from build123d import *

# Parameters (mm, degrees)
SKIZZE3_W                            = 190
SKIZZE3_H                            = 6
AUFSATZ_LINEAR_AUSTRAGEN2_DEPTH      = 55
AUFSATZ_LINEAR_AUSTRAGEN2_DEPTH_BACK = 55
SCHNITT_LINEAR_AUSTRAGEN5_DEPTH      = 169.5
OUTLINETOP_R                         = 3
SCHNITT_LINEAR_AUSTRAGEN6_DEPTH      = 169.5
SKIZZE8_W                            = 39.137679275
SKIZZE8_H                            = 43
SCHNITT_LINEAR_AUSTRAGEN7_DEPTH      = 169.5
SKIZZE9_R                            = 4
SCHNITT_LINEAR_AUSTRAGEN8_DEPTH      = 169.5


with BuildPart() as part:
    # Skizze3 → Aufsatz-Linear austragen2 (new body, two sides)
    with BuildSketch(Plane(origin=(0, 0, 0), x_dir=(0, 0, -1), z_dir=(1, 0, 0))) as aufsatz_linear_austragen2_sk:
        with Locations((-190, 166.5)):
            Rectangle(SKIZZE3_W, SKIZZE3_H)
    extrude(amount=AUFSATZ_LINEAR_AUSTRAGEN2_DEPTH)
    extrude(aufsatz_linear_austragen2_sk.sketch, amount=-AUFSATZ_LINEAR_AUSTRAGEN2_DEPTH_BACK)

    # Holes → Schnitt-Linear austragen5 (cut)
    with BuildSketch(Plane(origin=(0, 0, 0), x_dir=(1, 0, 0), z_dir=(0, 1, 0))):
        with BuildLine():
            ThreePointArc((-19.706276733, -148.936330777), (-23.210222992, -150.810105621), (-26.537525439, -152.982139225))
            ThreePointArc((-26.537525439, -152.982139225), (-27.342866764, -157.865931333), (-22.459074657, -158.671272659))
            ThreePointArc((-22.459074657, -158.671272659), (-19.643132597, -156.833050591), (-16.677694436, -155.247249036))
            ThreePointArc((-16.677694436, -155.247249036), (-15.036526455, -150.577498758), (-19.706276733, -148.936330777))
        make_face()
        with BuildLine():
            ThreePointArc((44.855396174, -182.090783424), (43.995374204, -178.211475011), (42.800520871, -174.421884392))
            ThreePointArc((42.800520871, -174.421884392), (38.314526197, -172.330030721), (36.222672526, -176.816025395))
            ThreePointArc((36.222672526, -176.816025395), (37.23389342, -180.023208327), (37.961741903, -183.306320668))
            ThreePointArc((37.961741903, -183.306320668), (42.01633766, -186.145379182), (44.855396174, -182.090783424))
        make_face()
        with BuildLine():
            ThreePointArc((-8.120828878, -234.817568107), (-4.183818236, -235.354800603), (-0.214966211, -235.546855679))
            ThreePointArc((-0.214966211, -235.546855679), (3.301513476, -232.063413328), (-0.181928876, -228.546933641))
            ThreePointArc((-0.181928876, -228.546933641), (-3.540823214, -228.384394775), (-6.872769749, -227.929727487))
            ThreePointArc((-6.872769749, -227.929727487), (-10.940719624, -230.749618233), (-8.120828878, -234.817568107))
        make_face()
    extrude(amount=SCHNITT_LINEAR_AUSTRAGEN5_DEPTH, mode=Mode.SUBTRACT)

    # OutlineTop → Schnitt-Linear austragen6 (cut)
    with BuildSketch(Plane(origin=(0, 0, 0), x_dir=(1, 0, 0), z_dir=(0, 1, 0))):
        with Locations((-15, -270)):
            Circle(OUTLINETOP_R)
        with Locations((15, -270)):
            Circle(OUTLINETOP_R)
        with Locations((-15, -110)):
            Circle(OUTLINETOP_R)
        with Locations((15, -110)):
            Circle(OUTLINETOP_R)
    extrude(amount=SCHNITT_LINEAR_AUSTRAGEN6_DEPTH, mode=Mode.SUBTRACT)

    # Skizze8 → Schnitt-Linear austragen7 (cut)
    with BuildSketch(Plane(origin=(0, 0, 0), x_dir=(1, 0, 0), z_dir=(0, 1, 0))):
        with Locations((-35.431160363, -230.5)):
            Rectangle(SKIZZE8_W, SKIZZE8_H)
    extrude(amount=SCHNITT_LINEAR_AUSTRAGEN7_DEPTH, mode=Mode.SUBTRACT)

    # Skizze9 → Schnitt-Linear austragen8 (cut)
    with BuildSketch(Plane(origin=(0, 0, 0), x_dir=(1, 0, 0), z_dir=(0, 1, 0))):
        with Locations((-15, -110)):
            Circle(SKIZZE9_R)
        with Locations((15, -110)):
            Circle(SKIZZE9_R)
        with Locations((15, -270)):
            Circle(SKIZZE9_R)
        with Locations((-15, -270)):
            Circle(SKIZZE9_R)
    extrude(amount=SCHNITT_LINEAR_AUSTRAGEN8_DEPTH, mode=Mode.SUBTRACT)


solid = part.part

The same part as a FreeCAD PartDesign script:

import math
import FreeCAD as App
import Part
import Sketcher

V = App.Vector


def add_polygon(sketch, points):
    """Adds a closed chain of lines whose ends are joined by coincident constraints."""
    first, n = sketch.GeometryCount, len(points)
    for a, b in zip(points, points[1:] + points[:1]):
        sketch.addGeometry(Part.LineSegment(App.Vector(*a, 0), App.Vector(*b, 0)), False)
    for i in range(n):
        sketch.addConstraint(Sketcher.Constraint("Coincident", first + i, 2, first + (i + 1) % n, 1))

doc = App.newDocument("Part")
params = doc.addObject("Spreadsheet::Sheet", "Params")
for row, (alias, value) in enumerate([
    ("sketch1_width", "6 mm"),
    ("sketch1_height", "190 mm"),
    ("pad1_length", "55 mm"),
    ("pad1_length2", "55 mm"),
    ("sketch2_radius", "3.5 mm"),
    ("pocket1_length", "169.5 mm"),
    ("sketch3_diameter", "6 mm"),
    ("pocket2_length", "169.5 mm"),
    ("sketch4_height", "43 mm"),
    ("pocket3_length", "169.5 mm"),
    ("sketch5_diameter", "8 mm"),
    ("pocket4_length", "169.5 mm"),
], start=1):
    params.set(f"A{row}", alias)
    params.set(f"B{row}", "=" + value)
    params.setAlias(f"B{row}", alias)

body = doc.addObject("PartDesign::Body", "Body")

sketch1 = body.newObject("Sketcher::SketchObject", "Sketch")
sketch1.AttachmentSupport = (doc.getObject("YZ_Plane"), [""])
sketch1.MapMode = "FlatFace"
add_polygon(sketch1, [(170, 285), (164, 285), (164, 95), (170, 95)])
sketch1.addConstraint([
    Sketcher.Constraint("Horizontal", 0),
    Sketcher.Constraint("Vertical", 1),
    Sketcher.Constraint("Horizontal", 2),
    Sketcher.Constraint("Vertical", 3),
    Sketcher.Constraint("DistanceX", 0, 2, 0, 1, 6.0),
    Sketcher.Constraint("DistanceY", 1, 2, 1, 1, 190.0),
    Sketcher.Constraint("DistanceY", -1, 1, 0, 2, 285.0),
    Sketcher.Constraint("DistanceX", -1, 1, 0, 2, 163.5),
])
sketch1.setExpression("Constraints[8]", "Params.sketch1_width")
sketch1.setExpression("Constraints[9]", "Params.sketch1_height")
pad1 = body.newObject("PartDesign::Pad", "Pad")
pad1.Profile = sketch1
pad1.Type = "TwoLengths"
pad1.setExpression("Length", "Params.pad1_length")
pad1.setExpression("Length2", "Params.pad1_length2")

sketch2 = body.newObject("Sketcher::SketchObject", "Sketch001")
sketch2.AttachmentSupport = (doc.getObject("XZ_Plane"), [""])
sketch2.MapMode = "FlatFace"
sketch2.addGeometry([
    Part.ArcOfCircle(Part.Circle(V(0, 190, 0), V(0, 0, 1), 45.5), math.radians(-125.64), math.radians(-115.64)),
    Part.ArcOfCircle(Part.Circle(V(-24.5, 155.8, 0), V(0, 0, 1), 3.5), math.radians(54), math.radians(234)),
    Part.ArcOfCircle(Part.Circle(V(0, 190, 0), V(0, 0, 1), 38.5), math.radians(-125.64), math.radians(-115.64)),
    Part.ArcOfCircle(Part.Circle(V(-18.2, 152.1, 0), V(0, 0, 1), 3.5), math.radians(-116), math.radians(64)),
    Part.ArcOfCircle(Part.Circle(V(0, 190, 0), V(0, 0, 1), 45.5), math.radians(-20), math.radians(-10)),
    Part.ArcOfCircle(Part.Circle(V(39.5, 175.6, 0), V(0, 0, 1), 3.5), math.radians(160), math.radians(340)),
    Part.ArcOfCircle(Part.Circle(V(0, 190, 0), V(0, 0, 1), 38.5), math.radians(-20), math.radians(-10)),
    Part.ArcOfCircle(Part.Circle(V(41.4, 182.7, 0), V(0, 0, 1), 3.5), math.radians(-10), math.radians(170)),
    Part.ArcOfCircle(Part.Circle(V(0, 190, 0), V(0, 0, 1), 45.5), math.radians(90.27), math.radians(100.27)),
    Part.ArcOfCircle(Part.Circle(V(-0.2, 232, 0), V(0, 0, 1), 3.5), math.radians(-90), math.radians(90)),
    Part.ArcOfCircle(Part.Circle(V(0, 190, 0), V(0, 0, 1), 38.5), math.radians(90.27), math.radians(100.27)),
    Part.ArcOfCircle(Part.Circle(V(-7.5, 231.4, 0), V(0, 0, 1), 3.5), math.radians(100), math.radians(280)),
], False)
sketch2.addConstraint([
    Sketcher.Constraint("Tangent", 0, 1, 1, 2),
    Sketcher.Constraint("Tangent", 1, 1, 2, 1),
    Sketcher.Constraint("Tangent", 2, 2, 3, 2),
    Sketcher.Constraint("Tangent", 3, 1, 0, 2),
    Sketcher.Constraint("Tangent", 4, 1, 5, 2),
    Sketcher.Constraint("Tangent", 5, 1, 6, 1),
    Sketcher.Constraint("Tangent", 6, 2, 7, 2),
    Sketcher.Constraint("Tangent", 7, 1, 4, 2),
    Sketcher.Constraint("Tangent", 8, 1, 9, 2),
    Sketcher.Constraint("Tangent", 9, 1, 10, 1),
    Sketcher.Constraint("Tangent", 10, 2, 11, 2),
    Sketcher.Constraint("Tangent", 11, 1, 8, 2),
    Sketcher.Constraint("Coincident", 2, 3, 0, 3),
    Sketcher.Constraint("Coincident", 4, 3, 0, 3),
    Sketcher.Constraint("Coincident", 6, 3, 0, 3),
    Sketcher.Constraint("Coincident", 8, 3, 0, 3),
    Sketcher.Constraint("Coincident", 10, 3, 0, 3),
    Sketcher.Constraint("Equal", 0, 4),
    Sketcher.Constraint("Equal", 3, 5),
    Sketcher.Constraint("Equal", 4, 8),
    Sketcher.Constraint("Equal", 7, 9),
    Sketcher.Constraint("PointOnObject", 0, 3, -2),
    Sketcher.Constraint("Radius", 1, 3.5),
    Sketcher.Constraint("DistanceY", -1, 1, 0, 3, 190.0),
    Sketcher.Constraint("Radius", 0, 45.547363),
    Sketcher.Constraint("DistanceX", 1, 3, -1, 1, 24.4983),
    Sketcher.Constraint("DistanceX", 11, 3, -1, 1, 7.496799),
    Sketcher.Constraint("DistanceY", 4, 1, 7, 1, 7.668899),
    Sketcher.Constraint("DistanceX", 5, 3, 7, 1, 5.343799),
    Sketcher.Constraint("DistanceX", 11, 1, 9, 1, 7.9389),
    Sketcher.Constraint("DistanceY", -1, 1, 3, 3, 152.09179),
])
sketch2.setExpression("Constraints[22]", "Params.sketch2_radius")
pocket1 = body.newObject("PartDesign::Pocket", "Pocket")
pocket1.Profile = sketch2
pocket1.setExpression("Length", "Params.pocket1_length")

sketch3 = body.newObject("Sketcher::SketchObject", "Sketch002")
sketch3.AttachmentSupport = (doc.getObject("XZ_Plane"), [""])
sketch3.MapMode = "FlatFace"
sketch3.addGeometry([
    Part.Circle(V(-15, 270, 0), V(0, 0, 1), 3),
    Part.Circle(V(15, 270, 0), V(0, 0, 1), 3),
    Part.Circle(V(-15, 110, 0), V(0, 0, 1), 3),
    Part.Circle(V(15, 110, 0), V(0, 0, 1), 3),
], False)
sketch3.addConstraint([
    Sketcher.Constraint("Equal", 0, 1),
    Sketcher.Constraint("Equal", 1, 2),
    Sketcher.Constraint("Equal", 2, 3),
    Sketcher.Constraint("Symmetric", 0, 3, 1, 3, -2),
    Sketcher.Constraint("Symmetric", 2, 3, 3, 3, -2),
    Sketcher.Constraint("Vertical", 0, 3, 2, 3),
    Sketcher.Constraint("Diameter", 0, 6.0),
    Sketcher.Constraint("DistanceX", 0, 3, -1, 1, 15.0),
    Sketcher.Constraint("DistanceY", -1, 1, 0, 3, 270.0),
    Sketcher.Constraint("DistanceY", -1, 1, 2, 3, 110.0),
])
sketch3.setExpression("Constraints[6]", "Params.sketch3_diameter")
pocket2 = body.newObject("PartDesign::Pocket", "Pocket001")
pocket2.Profile = sketch3
pocket2.setExpression("Length", "Params.pocket2_length")

sketch4 = body.newObject("Sketcher::SketchObject", "Sketch003")
sketch4.AttachmentSupport = (doc.getObject("XZ_Plane"), [""])
sketch4.MapMode = "FlatFace"
add_polygon(sketch4, [(-55, 209), (-55, 252), (-16, 252), (-16, 209)])
sketch4.addConstraint([
    Sketcher.Constraint("Vertical", 0),
    Sketcher.Constraint("Horizontal", 1),
    Sketcher.Constraint("Vertical", 2),
    Sketcher.Constraint("Horizontal", 3),
    Sketcher.Constraint("DistanceY", 0, 1, 0, 2, 43.0),
    Sketcher.Constraint("DistanceX", 0, 2, -1, 1, 55.0),
    Sketcher.Constraint("DistanceY", -1, 1, 0, 2, 252.0),
    Sketcher.Constraint("DistanceX", 1, 1, 1, 2, 39.137679),
])
sketch4.setExpression("Constraints[8]", "Params.sketch4_height")
pocket3 = body.newObject("PartDesign::Pocket", "Pocket002")
pocket3.Profile = sketch4
pocket3.setExpression("Length", "Params.pocket3_length")

sketch5 = body.newObject("Sketcher::SketchObject", "Sketch004")
sketch5.AttachmentSupport = (doc.getObject("XZ_Plane"), [""])
sketch5.MapMode = "FlatFace"
sketch5.addGeometry([
    Part.Circle(V(-15, 110, 0), V(0, 0, 1), 4),
    Part.Circle(V(15, 110, 0), V(0, 0, 1), 4),
    Part.Circle(V(15, 270, 0), V(0, 0, 1), 4),
    Part.Circle(V(-15, 270, 0), V(0, 0, 1), 4),
], False)
sketch5.addConstraint([
    Sketcher.Constraint("Equal", 0, 1),
    Sketcher.Constraint("Equal", 1, 2),
    Sketcher.Constraint("Equal", 2, 3),
    Sketcher.Constraint("Symmetric", 0, 3, 1, 3, -2),
    Sketcher.Constraint("Symmetric", 2, 3, 3, 3, -2),
    Sketcher.Constraint("Vertical", 1, 3, 2, 3),
    Sketcher.Constraint("Diameter", 0, 8.0),
    Sketcher.Constraint("DistanceX", 0, 3, -1, 1, 15.0),
    Sketcher.Constraint("DistanceY", -1, 1, 0, 3, 110.0),
    Sketcher.Constraint("DistanceY", -1, 1, 2, 3, 270.0),
])
sketch5.setExpression("Constraints[6]", "Params.sketch5_diameter")
pocket4 = body.newObject("PartDesign::Pocket", "Pocket003")
pocket4.Profile = sketch5
pocket4.setExpression("Length", "Params.pocket4_length")

doc.recompute()
